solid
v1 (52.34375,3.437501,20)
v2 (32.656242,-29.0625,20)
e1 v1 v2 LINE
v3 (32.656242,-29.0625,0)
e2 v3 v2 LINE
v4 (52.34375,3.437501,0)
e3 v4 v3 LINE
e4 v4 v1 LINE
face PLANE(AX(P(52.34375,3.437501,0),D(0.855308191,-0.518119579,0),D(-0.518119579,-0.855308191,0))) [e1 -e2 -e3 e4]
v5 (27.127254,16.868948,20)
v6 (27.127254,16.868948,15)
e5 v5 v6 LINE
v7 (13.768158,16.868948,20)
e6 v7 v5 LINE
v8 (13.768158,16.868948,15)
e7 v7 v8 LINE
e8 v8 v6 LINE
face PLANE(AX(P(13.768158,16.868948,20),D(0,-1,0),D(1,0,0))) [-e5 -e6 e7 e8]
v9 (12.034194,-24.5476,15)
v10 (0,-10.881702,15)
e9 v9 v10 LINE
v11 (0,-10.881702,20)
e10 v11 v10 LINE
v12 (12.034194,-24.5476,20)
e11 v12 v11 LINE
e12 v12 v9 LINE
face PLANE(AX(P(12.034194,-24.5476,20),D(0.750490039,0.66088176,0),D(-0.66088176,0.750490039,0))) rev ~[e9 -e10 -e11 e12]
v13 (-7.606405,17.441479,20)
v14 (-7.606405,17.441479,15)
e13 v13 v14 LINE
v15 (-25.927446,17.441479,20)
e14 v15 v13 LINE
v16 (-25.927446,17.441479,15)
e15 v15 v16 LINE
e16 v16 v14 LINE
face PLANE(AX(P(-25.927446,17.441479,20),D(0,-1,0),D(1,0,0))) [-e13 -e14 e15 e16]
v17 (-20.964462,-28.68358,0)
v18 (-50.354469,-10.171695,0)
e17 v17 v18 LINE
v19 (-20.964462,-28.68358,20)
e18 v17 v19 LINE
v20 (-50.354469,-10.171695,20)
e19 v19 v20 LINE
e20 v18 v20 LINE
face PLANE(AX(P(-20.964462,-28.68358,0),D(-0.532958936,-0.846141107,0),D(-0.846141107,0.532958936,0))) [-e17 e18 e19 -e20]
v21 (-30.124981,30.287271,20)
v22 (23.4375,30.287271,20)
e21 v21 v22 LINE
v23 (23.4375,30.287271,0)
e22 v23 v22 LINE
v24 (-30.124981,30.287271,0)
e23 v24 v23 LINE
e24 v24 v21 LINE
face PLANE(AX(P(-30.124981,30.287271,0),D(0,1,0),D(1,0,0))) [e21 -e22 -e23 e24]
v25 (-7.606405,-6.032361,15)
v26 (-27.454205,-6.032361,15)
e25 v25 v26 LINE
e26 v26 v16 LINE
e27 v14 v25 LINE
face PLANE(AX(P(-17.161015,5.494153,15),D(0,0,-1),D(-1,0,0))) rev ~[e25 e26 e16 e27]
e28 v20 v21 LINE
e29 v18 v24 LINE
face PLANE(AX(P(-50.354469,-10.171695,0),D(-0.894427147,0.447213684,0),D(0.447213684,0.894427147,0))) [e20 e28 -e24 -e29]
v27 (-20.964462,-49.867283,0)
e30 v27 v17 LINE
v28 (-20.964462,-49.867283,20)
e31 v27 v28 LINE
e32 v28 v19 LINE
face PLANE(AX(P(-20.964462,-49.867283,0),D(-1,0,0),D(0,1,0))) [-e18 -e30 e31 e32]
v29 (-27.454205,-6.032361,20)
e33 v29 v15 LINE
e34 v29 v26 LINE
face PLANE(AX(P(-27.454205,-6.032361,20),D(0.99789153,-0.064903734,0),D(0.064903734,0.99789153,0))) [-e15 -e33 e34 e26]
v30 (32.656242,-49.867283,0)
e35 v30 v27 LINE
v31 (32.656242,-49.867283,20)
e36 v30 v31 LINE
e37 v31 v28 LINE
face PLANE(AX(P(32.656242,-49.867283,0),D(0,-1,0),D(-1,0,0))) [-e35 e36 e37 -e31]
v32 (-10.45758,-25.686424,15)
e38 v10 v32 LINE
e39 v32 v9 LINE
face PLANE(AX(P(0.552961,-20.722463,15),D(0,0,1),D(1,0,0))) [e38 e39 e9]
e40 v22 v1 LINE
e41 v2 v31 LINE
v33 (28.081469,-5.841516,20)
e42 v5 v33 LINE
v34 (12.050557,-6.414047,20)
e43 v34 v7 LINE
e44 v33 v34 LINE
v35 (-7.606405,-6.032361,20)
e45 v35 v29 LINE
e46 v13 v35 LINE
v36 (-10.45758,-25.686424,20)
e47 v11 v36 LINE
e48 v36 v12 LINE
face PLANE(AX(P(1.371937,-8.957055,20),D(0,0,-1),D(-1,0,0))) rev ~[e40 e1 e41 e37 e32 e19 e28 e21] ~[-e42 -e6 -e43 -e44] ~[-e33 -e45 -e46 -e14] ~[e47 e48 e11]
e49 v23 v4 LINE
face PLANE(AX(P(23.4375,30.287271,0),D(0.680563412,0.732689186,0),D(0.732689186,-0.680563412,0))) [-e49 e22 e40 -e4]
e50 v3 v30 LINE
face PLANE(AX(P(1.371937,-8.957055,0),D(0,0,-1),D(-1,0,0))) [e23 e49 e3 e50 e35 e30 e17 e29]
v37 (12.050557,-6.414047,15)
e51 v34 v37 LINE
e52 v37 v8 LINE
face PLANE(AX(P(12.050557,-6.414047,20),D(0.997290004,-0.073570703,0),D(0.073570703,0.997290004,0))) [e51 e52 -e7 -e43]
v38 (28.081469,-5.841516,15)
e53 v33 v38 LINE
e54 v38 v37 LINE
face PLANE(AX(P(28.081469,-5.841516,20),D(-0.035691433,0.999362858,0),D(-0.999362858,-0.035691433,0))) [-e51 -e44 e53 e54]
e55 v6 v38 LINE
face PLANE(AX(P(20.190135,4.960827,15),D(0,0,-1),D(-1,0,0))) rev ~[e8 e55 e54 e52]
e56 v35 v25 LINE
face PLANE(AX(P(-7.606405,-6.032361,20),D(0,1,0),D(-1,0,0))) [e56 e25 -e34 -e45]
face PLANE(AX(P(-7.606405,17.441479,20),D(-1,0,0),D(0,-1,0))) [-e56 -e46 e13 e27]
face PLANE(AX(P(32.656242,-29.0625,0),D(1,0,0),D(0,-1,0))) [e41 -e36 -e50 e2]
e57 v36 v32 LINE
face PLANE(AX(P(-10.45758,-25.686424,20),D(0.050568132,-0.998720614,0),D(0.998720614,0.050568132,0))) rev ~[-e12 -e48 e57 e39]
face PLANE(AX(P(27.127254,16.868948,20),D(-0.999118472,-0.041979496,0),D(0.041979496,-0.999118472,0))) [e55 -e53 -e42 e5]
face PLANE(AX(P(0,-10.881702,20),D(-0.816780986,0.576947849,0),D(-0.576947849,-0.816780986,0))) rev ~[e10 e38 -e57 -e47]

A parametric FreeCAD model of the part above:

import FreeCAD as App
import Part
import Sketcher
from FreeCAD import Vector


def add_polygon(sketch, points):
    """Adds a closed chain of lines whose ends are joined by coincident constraints."""
    first, n = sketch.GeometryCount, len(points)
    for a, b in zip(points, points[1:] + points[:1]):
        sketch.addGeometry(Part.LineSegment(App.Vector(*a, 0), App.Vector(*b, 0)), False)
    for i in range(n):
        sketch.addConstraint(Sketcher.Constraint("Coincident", first + i, 2, first + (i + 1) % n, 1))

doc = App.newDocument("Part")
body = doc.addObject("PartDesign::Body", "Body")

# Sketch on XY plane
sketch1 = body.newObject("Sketcher::SketchObject", "Sketch")
sketch1.AttachmentSupport = (doc.getObject("XY_Plane"), [""])
sketch1.MapMode = "FlatFace"
add_polygon(sketch1, [(23.4375, 30.287271), (-30.124981, 30.287271), (-50.354469, -10.171695), (-20.964462, -28.68358), (-20.964462, -49.867283), (32.656242, -49.867283), (32.656242, -29.0625), (52.34375, 3.437501)])  # lines 0-7
sketch1.addConstraint([
    Sketcher.Constraint("Horizontal", 0),
    Sketcher.Constraint("Vertical", 3),
    Sketcher.Constraint("Horizontal", 4),
    Sketcher.Constraint("Vertical", 5),
    Sketcher.Constraint("DistanceY", 5, 2, 6, 2, 32.500001),
    Sketcher.Constraint("Distance", 6, 37.998),
    Sketcher.Constraint("Distance", 1, 45.234501),
    Sketcher.Constraint("DistanceX", 0, 2, 0, 1, 53.562481),
    Sketcher.Constraint("DistanceY", 5, 2, -1, 1, 29.0625),
    Sketcher.Constraint("DistanceX", -1, 1, 7, 2, 23.4375),
    Sketcher.Constraint("DistanceX", 4, 1, 4, 2, 53.620704),
    Sketcher.Constraint("DistanceY", 3, 2, 3, 1, 21.183703),
    Sketcher.Constraint("DistanceY", 5, 1, 5, 2, 20.804783),
    Sketcher.Constraint("DistanceY", -1, 1, 0, 2, 30.287271),
    Sketcher.Constraint("DistanceX", 1, 2, -1, 1, 50.354469),
    Sketcher.Constraint("DistanceX", -1, 1, 6, 2, 52.34375),
])
pad1 = body.newObject("PartDesign::Pad", "Pad")
pad1.Profile = sketch1
pad1.Length = 20

# Sketch on XY plane
sketch2 = body.newObject("Sketcher::SketchObject", "Sketch001")
sketch2.AttachmentSupport = (doc.getObject("XY_Plane"), [""])
sketch2.MapMode = "FlatFace"
sketch2.AttachmentOffset = App.Placement(Vector(0, 0, 20), App.Rotation())
add_polygon(sketch2, [(-7.606405, 17.441479), (-25.927446, 17.441479), (-27.454205, -6.032361), (-7.606405, -6.032361)])  # lines 0-3
add_polygon(sketch2, [(27.127254, 16.868948), (13.768158, 16.868948), (12.050557, -6.414047), (28.081469, -5.841516)])  # lines 4-7
sketch2.addConstraint([
    Sketcher.Constraint("Horizontal", 0),
    Sketcher.Constraint("Horizontal", 2),
    Sketcher.Constraint("Vertical", 3),
    Sketcher.Constraint("Horizontal", 4),
    Sketcher.Constraint("DistanceX", 2, 1, 2, 2, 19.8478),
    Sketcher.Constraint("Distance", 7, 22.730502),
    Sketcher.Constraint("DistanceX", 0, 2, 0, 1, 18.321041),
    Sketcher.Constraint("DistanceY", 3, 1, 3, 2, 23.47384),
    Sketcher.Constraint("DistanceX", 5, 2, 4, 2, 1.717601),
    Sketcher.Constraint("DistanceX", 4, 2, 4, 1, 13.359096),
    Sketcher.Constraint("DistanceY", -1, 1, 0, 2, 17.441479),
    Sketcher.Constraint("DistanceX", -1, 1, 6, 2, 28.081469),
    Sketcher.Constraint("DistanceY", 4, 2, 3, 2, 0.572531),
    Sketcher.Constraint("DistanceX", 2, 2, 5, 2, 19.656962),
    Sketcher.Constraint("DistanceY", 5, 2, 6, 2, 0.572531),
    Sketcher.Constraint("DistanceX", 4, 2, 6, 2, 14.313311),
])
pocket1 = body.newObject("PartDesign::Pocket", "Pocket")
pocket1.Profile = sketch2
pocket1.Length = 5

# Sketch on XY plane
sketch3 = body.newObject("Sketcher::SketchObject", "Sketch002")
sketch3.AttachmentSupport = (doc.getObject("XY_Plane"), [""])
sketch3.MapMode = "FlatFace"
sketch3.AttachmentOffset = App.Placement(Vector(0, 0, 20), App.Rotation())
add_polygon(sketch3, [(0, -10.881702), (-10.45758, -25.686424), (12.034194, -24.5476)])  # lines 0-2
sketch3.addConstraint([
    Sketcher.Constraint("PointOnObject", 2, 2, -2),
    Sketcher.Constraint("Distance", 2, 18.2093),
    Sketcher.Constraint("DistanceY", 1, 2, -1, 1, 24.5476),
    Sketcher.Constraint("DistanceX", 0, 2, -1, 1, 10.45758),
    Sketcher.Constraint("DistanceY", 0, 2, 2, 2, 14.804722),
    Sketcher.Constraint("Distance", 1, 22.520587),
])
pocket2 = body.newObject("PartDesign::Pocket", "Pocket001")
pocket2.Profile = sketch3
pocket2.Length = 5

doc.recompute()
